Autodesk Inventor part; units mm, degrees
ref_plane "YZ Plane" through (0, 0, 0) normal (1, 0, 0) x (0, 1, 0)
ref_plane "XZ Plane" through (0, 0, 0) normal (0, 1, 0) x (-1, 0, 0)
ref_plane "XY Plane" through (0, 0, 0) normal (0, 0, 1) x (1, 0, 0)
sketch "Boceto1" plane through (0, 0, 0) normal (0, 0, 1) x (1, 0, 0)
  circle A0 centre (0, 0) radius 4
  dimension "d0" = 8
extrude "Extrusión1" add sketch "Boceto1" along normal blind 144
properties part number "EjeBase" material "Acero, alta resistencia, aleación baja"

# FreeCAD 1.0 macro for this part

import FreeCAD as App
import Part
import Sketcher
from FreeCAD import Vector

doc = App.newDocument("Part")
body = doc.addObject("PartDesign::Body", "Body")

# Sketch on XY plane
sketch1 = doc.addObject("Sketcher::SketchObject", "Sketch")
body.addObject(sketch1)
sketch1.AttachmentSupport = (doc.XY_Plane, [""])
sketch1.MapMode = "FlatFace"
sketch1.addGeometry(Part.Circle(Vector(0, 0, 0), Vector(0, 0, 1), 4), False)
sketch1.addConstraint(Sketcher.Constraint("Coincident", 0, 3, -1, 1))
sketch1.addConstraint(Sketcher.Constraint("Diameter", 0, 8.0))
pad1 = doc.addObject("PartDesign::Pad", "Pad")
body.addObject(pad1)
pad1.Profile = sketch1
pad1.Length = 144

doc.recompute()
